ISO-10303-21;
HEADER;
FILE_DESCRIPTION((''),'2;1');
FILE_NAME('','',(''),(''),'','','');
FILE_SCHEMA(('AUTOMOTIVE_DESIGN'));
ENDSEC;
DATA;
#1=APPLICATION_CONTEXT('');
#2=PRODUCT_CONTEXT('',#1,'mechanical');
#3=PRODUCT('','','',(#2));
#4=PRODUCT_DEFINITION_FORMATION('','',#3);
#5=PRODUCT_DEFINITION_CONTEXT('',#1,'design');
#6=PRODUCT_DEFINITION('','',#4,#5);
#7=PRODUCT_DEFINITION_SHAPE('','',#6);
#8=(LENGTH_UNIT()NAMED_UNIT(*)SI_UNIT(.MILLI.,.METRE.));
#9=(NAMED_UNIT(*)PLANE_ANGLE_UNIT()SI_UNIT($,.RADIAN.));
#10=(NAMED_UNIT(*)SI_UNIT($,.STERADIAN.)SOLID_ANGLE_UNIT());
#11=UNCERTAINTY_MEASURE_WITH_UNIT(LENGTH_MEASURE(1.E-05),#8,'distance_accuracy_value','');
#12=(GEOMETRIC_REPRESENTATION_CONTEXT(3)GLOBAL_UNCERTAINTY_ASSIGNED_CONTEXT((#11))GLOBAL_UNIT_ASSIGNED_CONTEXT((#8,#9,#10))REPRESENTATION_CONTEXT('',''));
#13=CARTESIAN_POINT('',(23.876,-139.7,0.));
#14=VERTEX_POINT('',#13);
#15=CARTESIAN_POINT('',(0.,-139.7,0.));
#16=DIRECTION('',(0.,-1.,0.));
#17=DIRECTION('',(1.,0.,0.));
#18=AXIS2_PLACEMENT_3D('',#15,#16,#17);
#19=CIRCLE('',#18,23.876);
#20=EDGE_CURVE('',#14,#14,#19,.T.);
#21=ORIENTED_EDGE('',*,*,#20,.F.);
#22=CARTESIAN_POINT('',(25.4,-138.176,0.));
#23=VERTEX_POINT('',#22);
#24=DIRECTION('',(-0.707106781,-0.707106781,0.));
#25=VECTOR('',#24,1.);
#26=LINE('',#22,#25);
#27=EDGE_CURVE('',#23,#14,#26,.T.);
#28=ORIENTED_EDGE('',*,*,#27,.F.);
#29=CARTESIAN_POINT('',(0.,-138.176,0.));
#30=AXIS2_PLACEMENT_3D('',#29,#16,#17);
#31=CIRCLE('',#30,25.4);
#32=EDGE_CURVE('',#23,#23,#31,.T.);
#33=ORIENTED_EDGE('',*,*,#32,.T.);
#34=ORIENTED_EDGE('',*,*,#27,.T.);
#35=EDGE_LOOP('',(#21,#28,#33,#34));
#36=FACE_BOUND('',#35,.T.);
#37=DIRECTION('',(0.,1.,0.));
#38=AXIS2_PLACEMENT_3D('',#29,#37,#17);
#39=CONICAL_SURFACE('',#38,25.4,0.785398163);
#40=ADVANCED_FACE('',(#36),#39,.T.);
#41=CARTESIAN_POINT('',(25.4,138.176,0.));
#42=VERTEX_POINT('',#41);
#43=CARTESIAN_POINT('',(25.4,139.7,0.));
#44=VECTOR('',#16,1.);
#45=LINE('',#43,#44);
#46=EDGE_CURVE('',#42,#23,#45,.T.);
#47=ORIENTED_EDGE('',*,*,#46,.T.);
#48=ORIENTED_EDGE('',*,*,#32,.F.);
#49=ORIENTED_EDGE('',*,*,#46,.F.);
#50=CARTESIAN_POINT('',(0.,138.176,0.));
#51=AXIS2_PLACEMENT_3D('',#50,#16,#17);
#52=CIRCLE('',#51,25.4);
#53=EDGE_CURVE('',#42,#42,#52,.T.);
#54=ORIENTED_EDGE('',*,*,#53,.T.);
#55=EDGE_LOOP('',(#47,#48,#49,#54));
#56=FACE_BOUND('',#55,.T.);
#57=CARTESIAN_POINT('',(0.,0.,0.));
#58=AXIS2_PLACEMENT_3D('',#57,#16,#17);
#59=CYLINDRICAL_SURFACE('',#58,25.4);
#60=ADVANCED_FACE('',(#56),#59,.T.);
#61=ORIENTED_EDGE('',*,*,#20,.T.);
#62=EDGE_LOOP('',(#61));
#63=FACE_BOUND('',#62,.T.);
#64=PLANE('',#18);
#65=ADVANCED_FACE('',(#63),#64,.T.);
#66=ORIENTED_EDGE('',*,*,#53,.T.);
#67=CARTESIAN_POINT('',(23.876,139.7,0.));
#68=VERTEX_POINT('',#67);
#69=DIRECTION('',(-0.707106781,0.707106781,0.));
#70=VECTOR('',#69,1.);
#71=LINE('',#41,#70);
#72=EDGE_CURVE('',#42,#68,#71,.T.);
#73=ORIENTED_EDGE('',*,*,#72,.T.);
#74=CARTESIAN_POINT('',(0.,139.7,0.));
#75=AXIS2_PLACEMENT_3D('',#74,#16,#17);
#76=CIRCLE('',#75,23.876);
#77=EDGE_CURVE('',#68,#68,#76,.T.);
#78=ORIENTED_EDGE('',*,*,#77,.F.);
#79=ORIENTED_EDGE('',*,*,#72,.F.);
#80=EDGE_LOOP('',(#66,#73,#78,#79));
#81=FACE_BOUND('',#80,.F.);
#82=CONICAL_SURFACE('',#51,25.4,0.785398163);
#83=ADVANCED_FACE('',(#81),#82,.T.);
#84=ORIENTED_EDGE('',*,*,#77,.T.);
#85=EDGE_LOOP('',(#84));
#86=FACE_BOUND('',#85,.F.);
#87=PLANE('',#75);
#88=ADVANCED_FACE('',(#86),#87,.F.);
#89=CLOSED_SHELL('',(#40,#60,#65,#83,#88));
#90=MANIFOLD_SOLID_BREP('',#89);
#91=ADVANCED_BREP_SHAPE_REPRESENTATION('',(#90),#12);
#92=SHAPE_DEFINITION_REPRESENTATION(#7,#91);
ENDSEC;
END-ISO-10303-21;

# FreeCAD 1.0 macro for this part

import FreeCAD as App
import Part
import Sketcher
from FreeCAD import Vector
Q = App.Units.Quantity

doc = App.newDocument("Part")
params = doc.addObject("Spreadsheet::Sheet", "Params")
for row, (alias, value) in enumerate([
    ("sketch1_diameter", "2 in"),
    ("pad1_length", "11 in"),
    ("chamfer_size", "0.06 in"),
], start=1):
    params.set(f"A{row}", alias)
    params.set(f"B{row}", "=" + value)
    params.setAlias(f"B{row}", alias)

body = doc.addObject("PartDesign::Body", "Body")

# Sketch on XZ plane
sketch1 = body.newObject("Sketcher::SketchObject", "Sketch")
sketch1.AttachmentSupport = (doc.getObject("XZ_Plane"), [""])
sketch1.MapMode = "FlatFace"
sketch1.addGeometry(Part.Circle(Vector(0, 0, 0), Vector(0, 0, 1), 25), False)
sketch1.addConstraint(Sketcher.Constraint("Coincident", 0, 3, -1, 1))
sketch1.addConstraint(Sketcher.Constraint("Diameter", 0, Q("2 in")))
sketch1.setExpression("Constraints[1]", "Params.sketch1_diameter")
pad1 = body.newObject("PartDesign::Pad", "Pad")
pad1.Profile = sketch1
pad1.setExpression("Length", "Params.pad1_length")
pad1.Midplane = True
doc.recompute()

chamfer = body.newObject("PartDesign::Chamfer", "Chamfer")
chamfer.Base = (pad1, ["Edge1"])
chamfer.UseAllEdges = True
chamfer.setExpression("Size", "Params.chamfer_size")

doc.recompute()
